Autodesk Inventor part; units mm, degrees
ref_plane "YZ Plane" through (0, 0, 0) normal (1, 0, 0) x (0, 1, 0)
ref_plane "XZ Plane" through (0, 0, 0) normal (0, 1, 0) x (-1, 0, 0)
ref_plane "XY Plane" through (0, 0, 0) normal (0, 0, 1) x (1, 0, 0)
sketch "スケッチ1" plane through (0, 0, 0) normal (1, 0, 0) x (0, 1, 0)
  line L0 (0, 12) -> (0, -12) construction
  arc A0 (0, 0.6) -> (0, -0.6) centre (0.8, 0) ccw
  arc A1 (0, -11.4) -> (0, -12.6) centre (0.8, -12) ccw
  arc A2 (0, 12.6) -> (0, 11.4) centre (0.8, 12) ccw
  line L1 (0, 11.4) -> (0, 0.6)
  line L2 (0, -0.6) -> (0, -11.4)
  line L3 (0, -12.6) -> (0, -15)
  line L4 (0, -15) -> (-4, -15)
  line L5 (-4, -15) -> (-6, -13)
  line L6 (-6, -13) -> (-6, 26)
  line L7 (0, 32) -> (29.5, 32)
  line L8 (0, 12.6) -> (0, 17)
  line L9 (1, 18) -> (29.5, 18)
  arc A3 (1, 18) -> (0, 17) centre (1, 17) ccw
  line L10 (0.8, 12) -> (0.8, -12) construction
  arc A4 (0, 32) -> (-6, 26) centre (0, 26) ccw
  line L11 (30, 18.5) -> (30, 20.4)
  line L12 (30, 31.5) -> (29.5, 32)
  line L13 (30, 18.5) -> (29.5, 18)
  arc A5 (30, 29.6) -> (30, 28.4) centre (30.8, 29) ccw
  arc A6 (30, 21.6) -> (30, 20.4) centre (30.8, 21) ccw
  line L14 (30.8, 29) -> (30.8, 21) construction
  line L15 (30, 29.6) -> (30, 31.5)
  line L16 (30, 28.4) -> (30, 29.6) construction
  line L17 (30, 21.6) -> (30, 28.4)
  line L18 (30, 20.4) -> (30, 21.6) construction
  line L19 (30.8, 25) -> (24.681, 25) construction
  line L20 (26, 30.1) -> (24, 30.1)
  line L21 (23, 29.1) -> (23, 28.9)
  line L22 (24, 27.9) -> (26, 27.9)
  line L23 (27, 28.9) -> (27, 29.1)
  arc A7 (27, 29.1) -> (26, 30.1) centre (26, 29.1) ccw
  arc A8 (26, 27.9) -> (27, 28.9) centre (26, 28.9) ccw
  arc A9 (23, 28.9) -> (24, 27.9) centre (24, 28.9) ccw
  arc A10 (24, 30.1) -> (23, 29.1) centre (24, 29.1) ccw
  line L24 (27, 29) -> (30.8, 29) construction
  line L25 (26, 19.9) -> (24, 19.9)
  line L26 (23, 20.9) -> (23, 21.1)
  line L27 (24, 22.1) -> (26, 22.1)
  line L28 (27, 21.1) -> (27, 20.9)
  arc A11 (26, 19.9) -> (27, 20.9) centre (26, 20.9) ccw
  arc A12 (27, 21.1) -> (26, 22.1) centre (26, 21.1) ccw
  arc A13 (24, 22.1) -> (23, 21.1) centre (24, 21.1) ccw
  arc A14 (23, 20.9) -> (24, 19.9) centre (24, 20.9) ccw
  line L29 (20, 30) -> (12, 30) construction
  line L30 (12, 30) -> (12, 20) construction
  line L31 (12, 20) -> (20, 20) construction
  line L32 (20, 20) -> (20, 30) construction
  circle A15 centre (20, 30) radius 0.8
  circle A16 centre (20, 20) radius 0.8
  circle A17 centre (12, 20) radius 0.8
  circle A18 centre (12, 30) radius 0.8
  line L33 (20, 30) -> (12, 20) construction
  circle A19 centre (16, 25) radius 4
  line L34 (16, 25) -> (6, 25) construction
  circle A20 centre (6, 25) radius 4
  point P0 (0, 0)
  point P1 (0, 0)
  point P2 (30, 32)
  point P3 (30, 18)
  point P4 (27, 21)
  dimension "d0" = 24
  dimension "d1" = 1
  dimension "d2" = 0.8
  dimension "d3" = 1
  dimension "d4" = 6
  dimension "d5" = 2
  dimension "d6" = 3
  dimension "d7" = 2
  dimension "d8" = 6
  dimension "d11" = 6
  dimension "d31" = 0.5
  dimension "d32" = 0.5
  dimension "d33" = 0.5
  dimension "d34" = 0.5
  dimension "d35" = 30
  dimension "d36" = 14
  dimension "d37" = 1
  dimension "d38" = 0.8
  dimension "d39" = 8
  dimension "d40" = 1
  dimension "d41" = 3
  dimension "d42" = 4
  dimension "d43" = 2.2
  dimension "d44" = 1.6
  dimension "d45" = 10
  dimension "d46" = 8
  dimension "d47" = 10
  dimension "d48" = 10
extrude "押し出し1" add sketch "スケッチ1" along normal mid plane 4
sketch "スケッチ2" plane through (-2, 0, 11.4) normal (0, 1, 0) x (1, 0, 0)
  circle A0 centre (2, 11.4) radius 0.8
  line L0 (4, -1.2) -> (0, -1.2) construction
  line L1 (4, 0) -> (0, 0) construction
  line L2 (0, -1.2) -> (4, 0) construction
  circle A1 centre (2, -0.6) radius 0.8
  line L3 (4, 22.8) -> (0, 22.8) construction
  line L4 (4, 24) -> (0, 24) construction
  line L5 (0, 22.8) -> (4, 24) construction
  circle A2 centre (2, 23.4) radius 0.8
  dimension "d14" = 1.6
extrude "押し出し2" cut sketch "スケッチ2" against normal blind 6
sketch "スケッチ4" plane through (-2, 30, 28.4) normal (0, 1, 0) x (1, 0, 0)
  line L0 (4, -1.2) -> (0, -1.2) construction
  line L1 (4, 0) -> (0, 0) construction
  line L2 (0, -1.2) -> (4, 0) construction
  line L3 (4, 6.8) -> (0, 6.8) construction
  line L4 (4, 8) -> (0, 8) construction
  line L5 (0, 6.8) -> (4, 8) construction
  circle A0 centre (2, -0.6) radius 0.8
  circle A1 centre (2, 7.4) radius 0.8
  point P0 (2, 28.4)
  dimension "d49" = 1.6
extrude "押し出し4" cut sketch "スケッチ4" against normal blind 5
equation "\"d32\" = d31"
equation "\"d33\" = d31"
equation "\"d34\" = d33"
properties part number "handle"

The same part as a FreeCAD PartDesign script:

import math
import FreeCAD as App
import Part
import Sketcher

V = App.Vector
Q = App.Units.Quantity

doc = App.newDocument("Part")
body = doc.addObject("PartDesign::Body", "Body")

# Sketch on YZ plane
sketch1 = body.newObject("Sketcher::SketchObject", "Sketch")
sketch1.AttachmentSupport = (doc.getObject("YZ_Plane"), [""])
sketch1.MapMode = "FlatFace"
sketch1.addGeometry([
    Part.ArcOfCircle(Part.Circle(V(0.8, 0, 0), V(0, 0, 1), 1), math.radians(143.130102), math.radians(216.869898)),  # 0
    Part.LineSegment(V(0, 0.6, 0), V(0, 11.4, 0)),  # 1
    Part.ArcOfCircle(Part.Circle(V(0.8, 12, 0), V(0, 0, 1), 1), math.radians(143.130102), math.radians(216.869898)),  # 2
    Part.LineSegment(V(0, 12.6, 0), V(0, 17, 0)),  # 3
    Part.ArcOfCircle(Part.Circle(V(1, 17, 0), V(0, 0, 1), 1), math.radians(90), math.radians(180)),  # 4
    Part.LineSegment(V(1, 18, 0), V(29.5, 18, 0)),  # 5
    Part.LineSegment(V(29.5, 18, 0), V(30, 18.5, 0)),  # 6
    Part.LineSegment(V(30, 18.5, 0), V(30, 20.4, 0)),  # 7
    Part.ArcOfCircle(Part.Circle(V(30.8, 21, 0), V(0, 0, 1), 1), math.radians(143.130102), math.radians(216.869898)),  # 8
    Part.LineSegment(V(30, 21.6, 0), V(30, 28.4, 0)),  # 9
    Part.ArcOfCircle(Part.Circle(V(30.8, 29, 0), V(0, 0, 1), 1), math.radians(143.130102), math.radians(216.869898)),  # 10
    Part.LineSegment(V(30, 29.6, 0), V(30, 31.5, 0)),  # 11
    Part.LineSegment(V(30, 31.5, 0), V(29.5, 32, 0)),  # 12
    Part.LineSegment(V(29.5, 32, 0), V(0, 32, 0)),  # 13
    Part.ArcOfCircle(Part.Circle(V(0, 26, 0), V(0, 0, 1), 6), math.radians(90), math.radians(180)),  # 14
    Part.LineSegment(V(-6, 26, 0), V(-6, -13, 0)),  # 15
    Part.LineSegment(V(-6, -13, 0), V(-4, -15, 0)),  # 16
    Part.LineSegment(V(-4, -15, 0), V(0, -15, 0)),  # 17
    Part.LineSegment(V(0, -15, 0), V(0, -12.6, 0)),  # 18
    Part.ArcOfCircle(Part.Circle(V(0.8, -12, 0), V(0, 0, 1), 1), math.radians(143.130102), math.radians(216.869898)),  # 19
    Part.LineSegment(V(0, -11.4, 0), V(0, -0.6, 0)),  # 20
    Part.Circle(V(6, 25, 0), V(0, 0, 1), 4),  # 21
    Part.Circle(V(12, 20, 0), V(0, 0, 1), 0.8),  # 22
    Part.Circle(V(20, 20, 0), V(0, 0, 1), 0.8),  # 23
    Part.Circle(V(16, 25, 0), V(0, 0, 1), 4),  # 24
    Part.Circle(V(12, 30, 0), V(0, 0, 1), 0.8),  # 25
    Part.Circle(V(20, 30, 0), V(0, 0, 1), 0.8),  # 26
    Part.ArcOfCircle(Part.Circle(V(26, 20.9, 0), V(0, 0, 1), 1), math.radians(-90), math.radians(0)),  # 27
    Part.LineSegment(V(26, 19.9, 0), V(24, 19.9, 0)),  # 28
    Part.ArcOfCircle(Part.Circle(V(24, 20.9, 0), V(0, 0, 1), 1), math.radians(180), math.radians(270)),  # 29
    Part.LineSegment(V(23, 20.9, 0), V(23, 21.1, 0)),  # 30
    Part.ArcOfCircle(Part.Circle(V(24, 21.1, 0), V(0, 0, 1), 1), math.radians(90), math.radians(180)),  # 31
    Part.LineSegment(V(24, 22.1, 0), V(26, 22.1, 0)),  # 32
    Part.ArcOfCircle(Part.Circle(V(26, 21.1, 0), V(0, 0, 1), 1), math.radians(0), math.radians(90)),  # 33
    Part.LineSegment(V(27, 21.1, 0), V(27, 20.9, 0)),  # 34
    Part.LineSegment(V(24, 30.1, 0), V(26, 30.1, 0)),  # 35
    Part.ArcOfCircle(Part.Circle(V(26, 29.1, 0), V(0, 0, 1), 1), math.radians(0), math.radians(90)),  # 36
    Part.LineSegment(V(27, 29.1, 0), V(27, 28.9, 0)),  # 37
    Part.ArcOfCircle(Part.Circle(V(26, 28.9, 0), V(0, 0, 1), 1), math.radians(-90), math.radians(0)),  # 38
    Part.LineSegment(V(26, 27.9, 0), V(24, 27.9, 0)),  # 39
    Part.ArcOfCircle(Part.Circle(V(24, 28.9, 0), V(0, 0, 1), 1), math.radians(180), math.radians(270)),  # 40
    Part.LineSegment(V(23, 28.9, 0), V(23, 29.1, 0)),  # 41
    Part.ArcOfCircle(Part.Circle(V(24, 29.1, 0), V(0, 0, 1), 1), math.radians(90), math.radians(180)),  # 42
], False)
sketch1.addConstraint([
    Sketcher.Constraint("Coincident", 0, 1, 1, 1),
    Sketcher.Constraint("Coincident", 1, 2, 2, 2),
    Sketcher.Constraint("Coincident", 2, 1, 3, 1),
    Sketcher.Constraint("Tangent", 3, 2, 4, 2),
    Sketcher.Constraint("Tangent", 4, 1, 5, 1),
    Sketcher.Constraint("Coincident", 5, 2, 6, 1),
    Sketcher.Constraint("Coincident", 6, 2, 7, 1),
    Sketcher.Constraint("Coincident", 7, 2, 8, 2),
    Sketcher.Constraint("Coincident", 8, 1, 9, 1),
    Sketcher.Constraint("Coincident", 9, 2, 10, 2),
    Sketcher.Constraint("Coincident", 10, 1, 11, 1),
    Sketcher.Constraint("Coincident", 11, 2, 12, 1),
    Sketcher.Constraint("Coincident", 12, 2, 13, 1),
    Sketcher.Constraint("Tangent", 13, 2, 14, 1),
    Sketcher.Constraint("Tangent", 14, 2, 15, 1),
    Sketcher.Constraint("Coincident", 15, 2, 16, 1),
    Sketcher.Constraint("Coincident", 16, 2, 17, 1),
    Sketcher.Constraint("Coincident", 17, 2, 18, 1),
    Sketcher.Constraint("Coincident", 18, 2, 19, 2),
    Sketcher.Constraint("Coincident", 19, 1, 20, 1),
    Sketcher.Constraint("Coincident", 20, 2, 0, 2),
    Sketcher.Constraint("Tangent", 27, 1, 28, 1),
    Sketcher.Constraint("Tangent", 28, 2, 29, 2),
    Sketcher.Constraint("Tangent", 29, 1, 30, 1),
    Sketcher.Constraint("Tangent", 30, 2, 31, 2),
    Sketcher.Constraint("Tangent", 31, 1, 32, 1),
    Sketcher.Constraint("Tangent", 32, 2, 33, 2),
    Sketcher.Constraint("Tangent", 33, 1, 34, 1),
    Sketcher.Constraint("Tangent", 34, 2, 27, 2),
    Sketcher.Constraint("Tangent", 35, 2, 36, 2),
    Sketcher.Constraint("Tangent", 36, 1, 37, 1),
    Sketcher.Constraint("Tangent", 37, 2, 38, 2),
    Sketcher.Constraint("Tangent", 38, 1, 39, 1),
    Sketcher.Constraint("Tangent", 39, 2, 40, 2),
    Sketcher.Constraint("Tangent", 40, 1, 41, 1),
    Sketcher.Constraint("Tangent", 41, 2, 42, 2),
    Sketcher.Constraint("Tangent", 42, 1, 35, 1),
    Sketcher.Constraint("Vertical", 1),
    Sketcher.Constraint("Vertical", 3),
    Sketcher.Constraint("Horizontal", 5),
    Sketcher.Constraint("Vertical", 7),
    Sketcher.Constraint("Vertical", 9),
    Sketcher.Constraint("Vertical", 11),
    Sketcher.Constraint("Horizontal", 13),
    Sketcher.Constraint("Vertical", 15),
    Sketcher.Constraint("Horizontal", 17),
    Sketcher.Constraint("Vertical", 18),
    Sketcher.Constraint("Vertical", 20),
    Sketcher.Constraint("Horizontal", 28),
    Sketcher.Constraint("Vertical", 30),
    Sketcher.Constraint("Horizontal", 32),
    Sketcher.Constraint("Vertical", 34),
    Sketcher.Constraint("Horizontal", 35),
    Sketcher.Constraint("Vertical", 37),
    Sketcher.Constraint("Horizontal", 39),
    Sketcher.Constraint("Vertical", 41),
    Sketcher.Constraint("Equal", 0, 2),
    Sketcher.Constraint("Equal", 2, 4),
    Sketcher.Constraint("Equal", 4, 8),
    Sketcher.Constraint("Equal", 8, 10),
    Sketcher.Constraint("Equal", 10, 19),
    Sketcher.Constraint("Equal", 22, 23),
    Sketcher.Constraint("Equal", 21, 24),
    Sketcher.Constraint("Equal", 23, 25),
    Sketcher.Constraint("Equal", 25, 26),
    Sketcher.Constraint("Equal", 19, 27),
    Sketcher.Constraint("Equal", 27, 29),
    Sketcher.Constraint("Equal", 29, 31),
    Sketcher.Constraint("Equal", 31, 33),
    Sketcher.Constraint("Equal", 33, 36),
    Sketcher.Constraint("Equal", 36, 38),
    Sketcher.Constraint("Equal", 38, 40),
    Sketcher.Constraint("Equal", 40, 42),
    Sketcher.Constraint("Symmetric", 2, 1, 18, 2, -1, 1),
    Sketcher.Constraint("Symmetric", 1, 2, 19, 1, -1, 1),
    Sketcher.Constraint("Symmetric", 2, 3, 19, 3, -1),
    Sketcher.Constraint("PointOnObject", 0, 3, -1),
    Sketcher.Constraint("PointOnObject", 14, 3, -2),
    Sketcher.Constraint("Perpendicular", 6, 12),
    Sketcher.Constraint("Parallel", 12, 16),
    Sketcher.Constraint("Horizontal", 22, 3, 23, 3),
    Sketcher.Constraint("Horizontal", 21, 3, 24, 3),
    Sketcher.Constraint("Horizontal", 25, 3, 26, 3),
    Sketcher.Constraint("Vertical", 0, 3, 2, 3),
    Sketcher.Constraint("Vertical", 8, 3, 10, 3),
    Sketcher.Constraint("Vertical", 22, 3, 25, 3),
    Sketcher.Constraint("Vertical", 23, 3, 26, 3),
    Sketcher.Constraint("Vertical", 33, 3, 36, 3),
    Sketcher.Constraint("Vertical", 31, 3, 40, 3),
    Sketcher.Constraint("Vertical", 7, 2, 8, 1),
    Sketcher.Constraint("Vertical", 9, 2, 10, 1),
    Sketcher.Constraint("Vertical", 5, 2, 12, 2),
    Sketcher.Constraint("Equal", 7, 11),
    Sketcher.Constraint("Equal", 34, 37),
    Sketcher.Constraint("Equal", 6, 12),
    Sketcher.Constraint("Diameter", 21, Q("8 mm")),
    Sketcher.Constraint("Radius", 0, Q("1 mm")),
    Sketcher.Constraint("Radius", 14, Q("6 mm")),
    Sketcher.Constraint("Diameter", 22, Q("1.6 mm")),
    Sketcher.Constraint("DistanceX", 17, 1, 17, 2, Q("4 mm")),
    Sketcher.Constraint("DistanceX", 28, 2, 28, 1, Q("2 mm")),
    Sketcher.Constraint("DistanceX", -1, 1, 21, 3, Q("6 mm")),
    Sketcher.Constraint("DistanceY", -1, 1, 25, 3, Q("30 mm")),
    Sketcher.Constraint("DistanceX", -1, 1, 29, 3, Q("24 mm")),
    Sketcher.Constraint("DistanceX", -1, 1, 6, 2, Q("30 mm")),
    Sketcher.Constraint("DistanceY", 4, 3, 8, 3, Q("4 mm")),
    Sketcher.Constraint("DistanceX", 2, 3, 8, 3, Q("30 mm")),
    Sketcher.Constraint("DistanceY", 8, 3, 10, 3, Q("8 mm")),
    Sketcher.Constraint("DistanceY", 2, 3, 14, 3, Q("14 mm")),
    Sketcher.Constraint("DistanceY", 19, 3, 2, 3, Q("24 mm")),
    Sketcher.Constraint("DistanceY", 21, 3, 14, 3, Q("1 mm")),
    Sketcher.Constraint("DistanceX", 21, 3, 22, 3, Q("6 mm")),
    Sketcher.Constraint("DistanceY", 4, 3, 22, 3, Q("3 mm")),
    Sketcher.Constraint("DistanceX", 22, 3, 23, 3, Q("8 mm")),
    Sketcher.Constraint("DistanceX", 22, 3, 24, 3, Q("4 mm")),
    Sketcher.Constraint("DistanceY", 33, 3, 36, 3, Q("8 mm")),
    Sketcher.Constraint("DistanceY", 15, 2, 19, 3, Q("1 mm")),
    Sketcher.Constraint("DistanceX", -1, 1, 0, 3, Q("0.8 mm")),
    Sketcher.Constraint("DistanceX", 5, 2, 6, 2, Q("0.5 mm")),
    Sketcher.Constraint("DistanceY", 7, 2, 27, 3, Q("0.5 mm")),
    Sketcher.Constraint("DistanceY", 33, 3, 8, 1, Q("0.5 mm")),
])
pad1 = body.newObject("PartDesign::Pad", "Pad")
pad1.Profile = sketch1
pad1.Length = 4
pad1.Midplane = True

# Sketch on XZ plane
sketch2 = body.newObject("Sketcher::SketchObject", "Sketch001")
sketch2.AttachmentSupport = (doc.getObject("XZ_Plane"), [""])
sketch2.MapMode = "FlatFace"
sketch2.addGeometry([
    Part.Circle(V(0, 0, 0), V(0, 0, 1), 0.8),
    Part.Circle(V(0, 12, 0), V(0, 0, 1), 0.8),
    Part.Circle(V(0, -12, 0), V(0, 0, 1), 0.8),
], False)
sketch2.addConstraint([
    Sketcher.Constraint("Coincident", 0, 3, -1, 1),
    Sketcher.Constraint("Equal", 0, 1),
    Sketcher.Constraint("Equal", 1, 2),
    Sketcher.Constraint("Symmetric", 1, 3, 2, 3, -1, 1),
    Sketcher.Constraint("PointOnObject", 1, 3, -2),
    Sketcher.Constraint("Diameter", 0, Q("1.6 mm")),
    Sketcher.Constraint("DistanceY", -1, 1, 1, 3, Q("12 mm")),
])
pocket1 = body.newObject("PartDesign::Pocket", "Pocket")
pocket1.Profile = sketch2
pocket1.Length = 6
pocket1.Reversed = True

# Sketch on XZ plane
sketch3 = body.newObject("Sketcher::SketchObject", "Sketch002")
sketch3.AttachmentSupport = (doc.getObject("XZ_Plane"), [""])
sketch3.MapMode = "FlatFace"
sketch3.AttachmentOffset = App.Placement(V(0, 0, -30), App.Rotation())
sketch3.addGeometry([
    Part.Circle(V(0, 29, 0), V(0, 0, 1), 0.8),
    Part.Circle(V(0, 21, 0), V(0, 0, 1), 0.8),
], False)
sketch3.addConstraint([
    Sketcher.Constraint("Equal", 0, 1),
    Sketcher.Constraint("PointOnObject", 0, 3, -2),
    Sketcher.Constraint("PointOnObject", 1, 3, -2),
    Sketcher.Constraint("Diameter", 0, Q("1.6 mm")),
    Sketcher.Constraint("DistanceY", -1, 1, 0, 3, Q("29 mm")),
    Sketcher.Constraint("DistanceY", -1, 1, 1, 3, Q("21 mm")),
])
pocket2 = body.newObject("PartDesign::Pocket", "Pocket001")
pocket2.Profile = sketch3
pocket2.Length = 5
pocket2.Reversed = True

doc.recompute()
